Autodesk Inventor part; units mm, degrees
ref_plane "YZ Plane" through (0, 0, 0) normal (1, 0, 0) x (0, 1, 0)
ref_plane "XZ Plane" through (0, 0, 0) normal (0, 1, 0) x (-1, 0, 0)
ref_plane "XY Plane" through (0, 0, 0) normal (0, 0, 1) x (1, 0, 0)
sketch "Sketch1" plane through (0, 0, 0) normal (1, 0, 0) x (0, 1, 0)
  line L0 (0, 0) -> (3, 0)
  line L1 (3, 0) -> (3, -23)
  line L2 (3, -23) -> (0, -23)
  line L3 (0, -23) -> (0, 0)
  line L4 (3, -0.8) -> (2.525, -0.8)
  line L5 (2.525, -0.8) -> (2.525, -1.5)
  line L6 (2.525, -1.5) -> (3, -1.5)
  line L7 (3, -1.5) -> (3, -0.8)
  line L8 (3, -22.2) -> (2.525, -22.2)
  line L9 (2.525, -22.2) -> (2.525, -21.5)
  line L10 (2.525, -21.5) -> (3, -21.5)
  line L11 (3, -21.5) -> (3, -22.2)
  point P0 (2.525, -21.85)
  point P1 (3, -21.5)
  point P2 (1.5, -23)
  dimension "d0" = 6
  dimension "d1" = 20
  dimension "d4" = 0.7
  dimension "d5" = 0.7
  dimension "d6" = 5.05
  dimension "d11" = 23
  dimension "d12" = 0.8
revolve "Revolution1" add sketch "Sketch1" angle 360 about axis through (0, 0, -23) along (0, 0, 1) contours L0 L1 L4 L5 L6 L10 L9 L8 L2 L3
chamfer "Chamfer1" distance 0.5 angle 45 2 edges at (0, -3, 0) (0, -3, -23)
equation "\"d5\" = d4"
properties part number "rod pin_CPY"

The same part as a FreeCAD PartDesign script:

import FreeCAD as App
import Part
import Sketcher
from FreeCAD import Vector


def edges_at(feature, points):
    """Names of the edges that pass closest to the given points."""
    edges = feature.Shape.Edges
    near = lambda p: min(range(len(edges)), key=lambda i: edges[i].distToShape(Part.Vertex(*p))[0])
    return sorted({f"Edge{near(p) + 1}" for p in points})


def add_polygon(sketch, points):
    """Adds a closed chain of lines whose ends are joined by coincident constraints."""
    first, n = sketch.GeometryCount, len(points)
    for a, b in zip(points, points[1:] + points[:1]):
        sketch.addGeometry(Part.LineSegment(App.Vector(*a, 0), App.Vector(*b, 0)), False)
    for i in range(n):
        sketch.addConstraint(Sketcher.Constraint("Coincident", first + i, 2, first + (i + 1) % n, 1))

doc = App.newDocument("Part")
params = doc.addObject("Spreadsheet::Sheet", "Params")
for row, (alias, value) in enumerate([
    ("sketch1_height", "23 mm"),
    ("sketch1_height2", "20 mm"),
    ("sketch1_height3", "0.8 mm"),
    ("sketch1_width", "3 mm"),
    ("revolution_angle", "360 deg"),
    ("chamfer_size", "0.5 mm"),
], start=1):
    params.set(f"A{row}", alias)
    params.set(f"B{row}", "=" + value)
    params.setAlias(f"B{row}", alias)

body = doc.addObject("PartDesign::Body", "Body")

# Sketch on YZ plane
sketch1 = body.newObject("Sketcher::SketchObject", "Sketch")
sketch1.AttachmentSupport = (doc.getObject("YZ_Plane"), [""])
sketch1.MapMode = "FlatFace"
add_polygon(sketch1, [(3, 0), (0, 0), (0, -23), (3, -23), (3, -22.2), (2.52, -22.2), (2.52, -21.5), (3, -21.5), (3, -1.5), (2.52, -1.5), (2.52, -0.8), (3, -0.8)])  # lines 0-11
sketch1.addConstraint(Sketcher.Constraint("Horizontal", 0))
sketch1.addConstraint(Sketcher.Constraint("Vertical", 1))
sketch1.addConstraint(Sketcher.Constraint("Horizontal", 2))
sketch1.addConstraint(Sketcher.Constraint("Vertical", 3))
sketch1.addConstraint(Sketcher.Constraint("Horizontal", 4))
sketch1.addConstraint(Sketcher.Constraint("Vertical", 5))
sketch1.addConstraint(Sketcher.Constraint("Horizontal", 6))
sketch1.addConstraint(Sketcher.Constraint("Vertical", 7))
sketch1.addConstraint(Sketcher.Constraint("Horizontal", 8))
sketch1.addConstraint(Sketcher.Constraint("Vertical", 9))
sketch1.addConstraint(Sketcher.Constraint("Horizontal", 10))
sketch1.addConstraint(Sketcher.Constraint("Vertical", 11))
sketch1.addConstraint(Sketcher.Constraint("Coincident", 0, 2, -1, 1))
sketch1.addConstraint(Sketcher.Constraint("Vertical", 3, 2, 6, 2))
sketch1.addConstraint(Sketcher.Constraint("Vertical", 5, 2, 8, 2))
sketch1.addConstraint(Sketcher.Constraint("Vertical", 7, 2, 10, 2))
sketch1.addConstraint(Sketcher.Constraint("Equal", 5, 9))
sketch1.addConstraint(Sketcher.Constraint("Equal", 3, 11))
sketch1.addConstraint(Sketcher.Constraint("DistanceY", 1, 2, 1, 1, 23.0))
sketch1.addConstraint(Sketcher.Constraint("DistanceY", 7, 1, 7, 2, 20.0))
sketch1.addConstraint(Sketcher.Constraint("DistanceY", 3, 1, 3, 2, 0.8))
sketch1.addConstraint(Sketcher.Constraint("DistanceX", 0, 2, 0, 1, 3.0))
sketch1.addConstraint(Sketcher.Constraint("DistanceX", 4, 2, 4, 1, 0.475))
sketch1.setExpression("Constraints[30]", "Params.sketch1_height")
sketch1.setExpression("Constraints[31]", "Params.sketch1_height2")
sketch1.setExpression("Constraints[32]", "Params.sketch1_height3")
sketch1.setExpression("Constraints[33]", "Params.sketch1_width")
revolution = body.newObject("PartDesign::Revolution", "Revolution")
revolution.Profile = sketch1
revolution.ReferenceAxis = (sketch1, ["V_Axis"])
revolution.setExpression("Angle", "Params.revolution_angle")
doc.recompute()

chamfer = body.newObject("PartDesign::Chamfer", "Chamfer")
chamfer.Base = (revolution, edges_at(revolution, [(0, -3, 0), (0, -3, -23)]))
chamfer.setExpression("Size", "Params.chamfer_size")

doc.recompute()
